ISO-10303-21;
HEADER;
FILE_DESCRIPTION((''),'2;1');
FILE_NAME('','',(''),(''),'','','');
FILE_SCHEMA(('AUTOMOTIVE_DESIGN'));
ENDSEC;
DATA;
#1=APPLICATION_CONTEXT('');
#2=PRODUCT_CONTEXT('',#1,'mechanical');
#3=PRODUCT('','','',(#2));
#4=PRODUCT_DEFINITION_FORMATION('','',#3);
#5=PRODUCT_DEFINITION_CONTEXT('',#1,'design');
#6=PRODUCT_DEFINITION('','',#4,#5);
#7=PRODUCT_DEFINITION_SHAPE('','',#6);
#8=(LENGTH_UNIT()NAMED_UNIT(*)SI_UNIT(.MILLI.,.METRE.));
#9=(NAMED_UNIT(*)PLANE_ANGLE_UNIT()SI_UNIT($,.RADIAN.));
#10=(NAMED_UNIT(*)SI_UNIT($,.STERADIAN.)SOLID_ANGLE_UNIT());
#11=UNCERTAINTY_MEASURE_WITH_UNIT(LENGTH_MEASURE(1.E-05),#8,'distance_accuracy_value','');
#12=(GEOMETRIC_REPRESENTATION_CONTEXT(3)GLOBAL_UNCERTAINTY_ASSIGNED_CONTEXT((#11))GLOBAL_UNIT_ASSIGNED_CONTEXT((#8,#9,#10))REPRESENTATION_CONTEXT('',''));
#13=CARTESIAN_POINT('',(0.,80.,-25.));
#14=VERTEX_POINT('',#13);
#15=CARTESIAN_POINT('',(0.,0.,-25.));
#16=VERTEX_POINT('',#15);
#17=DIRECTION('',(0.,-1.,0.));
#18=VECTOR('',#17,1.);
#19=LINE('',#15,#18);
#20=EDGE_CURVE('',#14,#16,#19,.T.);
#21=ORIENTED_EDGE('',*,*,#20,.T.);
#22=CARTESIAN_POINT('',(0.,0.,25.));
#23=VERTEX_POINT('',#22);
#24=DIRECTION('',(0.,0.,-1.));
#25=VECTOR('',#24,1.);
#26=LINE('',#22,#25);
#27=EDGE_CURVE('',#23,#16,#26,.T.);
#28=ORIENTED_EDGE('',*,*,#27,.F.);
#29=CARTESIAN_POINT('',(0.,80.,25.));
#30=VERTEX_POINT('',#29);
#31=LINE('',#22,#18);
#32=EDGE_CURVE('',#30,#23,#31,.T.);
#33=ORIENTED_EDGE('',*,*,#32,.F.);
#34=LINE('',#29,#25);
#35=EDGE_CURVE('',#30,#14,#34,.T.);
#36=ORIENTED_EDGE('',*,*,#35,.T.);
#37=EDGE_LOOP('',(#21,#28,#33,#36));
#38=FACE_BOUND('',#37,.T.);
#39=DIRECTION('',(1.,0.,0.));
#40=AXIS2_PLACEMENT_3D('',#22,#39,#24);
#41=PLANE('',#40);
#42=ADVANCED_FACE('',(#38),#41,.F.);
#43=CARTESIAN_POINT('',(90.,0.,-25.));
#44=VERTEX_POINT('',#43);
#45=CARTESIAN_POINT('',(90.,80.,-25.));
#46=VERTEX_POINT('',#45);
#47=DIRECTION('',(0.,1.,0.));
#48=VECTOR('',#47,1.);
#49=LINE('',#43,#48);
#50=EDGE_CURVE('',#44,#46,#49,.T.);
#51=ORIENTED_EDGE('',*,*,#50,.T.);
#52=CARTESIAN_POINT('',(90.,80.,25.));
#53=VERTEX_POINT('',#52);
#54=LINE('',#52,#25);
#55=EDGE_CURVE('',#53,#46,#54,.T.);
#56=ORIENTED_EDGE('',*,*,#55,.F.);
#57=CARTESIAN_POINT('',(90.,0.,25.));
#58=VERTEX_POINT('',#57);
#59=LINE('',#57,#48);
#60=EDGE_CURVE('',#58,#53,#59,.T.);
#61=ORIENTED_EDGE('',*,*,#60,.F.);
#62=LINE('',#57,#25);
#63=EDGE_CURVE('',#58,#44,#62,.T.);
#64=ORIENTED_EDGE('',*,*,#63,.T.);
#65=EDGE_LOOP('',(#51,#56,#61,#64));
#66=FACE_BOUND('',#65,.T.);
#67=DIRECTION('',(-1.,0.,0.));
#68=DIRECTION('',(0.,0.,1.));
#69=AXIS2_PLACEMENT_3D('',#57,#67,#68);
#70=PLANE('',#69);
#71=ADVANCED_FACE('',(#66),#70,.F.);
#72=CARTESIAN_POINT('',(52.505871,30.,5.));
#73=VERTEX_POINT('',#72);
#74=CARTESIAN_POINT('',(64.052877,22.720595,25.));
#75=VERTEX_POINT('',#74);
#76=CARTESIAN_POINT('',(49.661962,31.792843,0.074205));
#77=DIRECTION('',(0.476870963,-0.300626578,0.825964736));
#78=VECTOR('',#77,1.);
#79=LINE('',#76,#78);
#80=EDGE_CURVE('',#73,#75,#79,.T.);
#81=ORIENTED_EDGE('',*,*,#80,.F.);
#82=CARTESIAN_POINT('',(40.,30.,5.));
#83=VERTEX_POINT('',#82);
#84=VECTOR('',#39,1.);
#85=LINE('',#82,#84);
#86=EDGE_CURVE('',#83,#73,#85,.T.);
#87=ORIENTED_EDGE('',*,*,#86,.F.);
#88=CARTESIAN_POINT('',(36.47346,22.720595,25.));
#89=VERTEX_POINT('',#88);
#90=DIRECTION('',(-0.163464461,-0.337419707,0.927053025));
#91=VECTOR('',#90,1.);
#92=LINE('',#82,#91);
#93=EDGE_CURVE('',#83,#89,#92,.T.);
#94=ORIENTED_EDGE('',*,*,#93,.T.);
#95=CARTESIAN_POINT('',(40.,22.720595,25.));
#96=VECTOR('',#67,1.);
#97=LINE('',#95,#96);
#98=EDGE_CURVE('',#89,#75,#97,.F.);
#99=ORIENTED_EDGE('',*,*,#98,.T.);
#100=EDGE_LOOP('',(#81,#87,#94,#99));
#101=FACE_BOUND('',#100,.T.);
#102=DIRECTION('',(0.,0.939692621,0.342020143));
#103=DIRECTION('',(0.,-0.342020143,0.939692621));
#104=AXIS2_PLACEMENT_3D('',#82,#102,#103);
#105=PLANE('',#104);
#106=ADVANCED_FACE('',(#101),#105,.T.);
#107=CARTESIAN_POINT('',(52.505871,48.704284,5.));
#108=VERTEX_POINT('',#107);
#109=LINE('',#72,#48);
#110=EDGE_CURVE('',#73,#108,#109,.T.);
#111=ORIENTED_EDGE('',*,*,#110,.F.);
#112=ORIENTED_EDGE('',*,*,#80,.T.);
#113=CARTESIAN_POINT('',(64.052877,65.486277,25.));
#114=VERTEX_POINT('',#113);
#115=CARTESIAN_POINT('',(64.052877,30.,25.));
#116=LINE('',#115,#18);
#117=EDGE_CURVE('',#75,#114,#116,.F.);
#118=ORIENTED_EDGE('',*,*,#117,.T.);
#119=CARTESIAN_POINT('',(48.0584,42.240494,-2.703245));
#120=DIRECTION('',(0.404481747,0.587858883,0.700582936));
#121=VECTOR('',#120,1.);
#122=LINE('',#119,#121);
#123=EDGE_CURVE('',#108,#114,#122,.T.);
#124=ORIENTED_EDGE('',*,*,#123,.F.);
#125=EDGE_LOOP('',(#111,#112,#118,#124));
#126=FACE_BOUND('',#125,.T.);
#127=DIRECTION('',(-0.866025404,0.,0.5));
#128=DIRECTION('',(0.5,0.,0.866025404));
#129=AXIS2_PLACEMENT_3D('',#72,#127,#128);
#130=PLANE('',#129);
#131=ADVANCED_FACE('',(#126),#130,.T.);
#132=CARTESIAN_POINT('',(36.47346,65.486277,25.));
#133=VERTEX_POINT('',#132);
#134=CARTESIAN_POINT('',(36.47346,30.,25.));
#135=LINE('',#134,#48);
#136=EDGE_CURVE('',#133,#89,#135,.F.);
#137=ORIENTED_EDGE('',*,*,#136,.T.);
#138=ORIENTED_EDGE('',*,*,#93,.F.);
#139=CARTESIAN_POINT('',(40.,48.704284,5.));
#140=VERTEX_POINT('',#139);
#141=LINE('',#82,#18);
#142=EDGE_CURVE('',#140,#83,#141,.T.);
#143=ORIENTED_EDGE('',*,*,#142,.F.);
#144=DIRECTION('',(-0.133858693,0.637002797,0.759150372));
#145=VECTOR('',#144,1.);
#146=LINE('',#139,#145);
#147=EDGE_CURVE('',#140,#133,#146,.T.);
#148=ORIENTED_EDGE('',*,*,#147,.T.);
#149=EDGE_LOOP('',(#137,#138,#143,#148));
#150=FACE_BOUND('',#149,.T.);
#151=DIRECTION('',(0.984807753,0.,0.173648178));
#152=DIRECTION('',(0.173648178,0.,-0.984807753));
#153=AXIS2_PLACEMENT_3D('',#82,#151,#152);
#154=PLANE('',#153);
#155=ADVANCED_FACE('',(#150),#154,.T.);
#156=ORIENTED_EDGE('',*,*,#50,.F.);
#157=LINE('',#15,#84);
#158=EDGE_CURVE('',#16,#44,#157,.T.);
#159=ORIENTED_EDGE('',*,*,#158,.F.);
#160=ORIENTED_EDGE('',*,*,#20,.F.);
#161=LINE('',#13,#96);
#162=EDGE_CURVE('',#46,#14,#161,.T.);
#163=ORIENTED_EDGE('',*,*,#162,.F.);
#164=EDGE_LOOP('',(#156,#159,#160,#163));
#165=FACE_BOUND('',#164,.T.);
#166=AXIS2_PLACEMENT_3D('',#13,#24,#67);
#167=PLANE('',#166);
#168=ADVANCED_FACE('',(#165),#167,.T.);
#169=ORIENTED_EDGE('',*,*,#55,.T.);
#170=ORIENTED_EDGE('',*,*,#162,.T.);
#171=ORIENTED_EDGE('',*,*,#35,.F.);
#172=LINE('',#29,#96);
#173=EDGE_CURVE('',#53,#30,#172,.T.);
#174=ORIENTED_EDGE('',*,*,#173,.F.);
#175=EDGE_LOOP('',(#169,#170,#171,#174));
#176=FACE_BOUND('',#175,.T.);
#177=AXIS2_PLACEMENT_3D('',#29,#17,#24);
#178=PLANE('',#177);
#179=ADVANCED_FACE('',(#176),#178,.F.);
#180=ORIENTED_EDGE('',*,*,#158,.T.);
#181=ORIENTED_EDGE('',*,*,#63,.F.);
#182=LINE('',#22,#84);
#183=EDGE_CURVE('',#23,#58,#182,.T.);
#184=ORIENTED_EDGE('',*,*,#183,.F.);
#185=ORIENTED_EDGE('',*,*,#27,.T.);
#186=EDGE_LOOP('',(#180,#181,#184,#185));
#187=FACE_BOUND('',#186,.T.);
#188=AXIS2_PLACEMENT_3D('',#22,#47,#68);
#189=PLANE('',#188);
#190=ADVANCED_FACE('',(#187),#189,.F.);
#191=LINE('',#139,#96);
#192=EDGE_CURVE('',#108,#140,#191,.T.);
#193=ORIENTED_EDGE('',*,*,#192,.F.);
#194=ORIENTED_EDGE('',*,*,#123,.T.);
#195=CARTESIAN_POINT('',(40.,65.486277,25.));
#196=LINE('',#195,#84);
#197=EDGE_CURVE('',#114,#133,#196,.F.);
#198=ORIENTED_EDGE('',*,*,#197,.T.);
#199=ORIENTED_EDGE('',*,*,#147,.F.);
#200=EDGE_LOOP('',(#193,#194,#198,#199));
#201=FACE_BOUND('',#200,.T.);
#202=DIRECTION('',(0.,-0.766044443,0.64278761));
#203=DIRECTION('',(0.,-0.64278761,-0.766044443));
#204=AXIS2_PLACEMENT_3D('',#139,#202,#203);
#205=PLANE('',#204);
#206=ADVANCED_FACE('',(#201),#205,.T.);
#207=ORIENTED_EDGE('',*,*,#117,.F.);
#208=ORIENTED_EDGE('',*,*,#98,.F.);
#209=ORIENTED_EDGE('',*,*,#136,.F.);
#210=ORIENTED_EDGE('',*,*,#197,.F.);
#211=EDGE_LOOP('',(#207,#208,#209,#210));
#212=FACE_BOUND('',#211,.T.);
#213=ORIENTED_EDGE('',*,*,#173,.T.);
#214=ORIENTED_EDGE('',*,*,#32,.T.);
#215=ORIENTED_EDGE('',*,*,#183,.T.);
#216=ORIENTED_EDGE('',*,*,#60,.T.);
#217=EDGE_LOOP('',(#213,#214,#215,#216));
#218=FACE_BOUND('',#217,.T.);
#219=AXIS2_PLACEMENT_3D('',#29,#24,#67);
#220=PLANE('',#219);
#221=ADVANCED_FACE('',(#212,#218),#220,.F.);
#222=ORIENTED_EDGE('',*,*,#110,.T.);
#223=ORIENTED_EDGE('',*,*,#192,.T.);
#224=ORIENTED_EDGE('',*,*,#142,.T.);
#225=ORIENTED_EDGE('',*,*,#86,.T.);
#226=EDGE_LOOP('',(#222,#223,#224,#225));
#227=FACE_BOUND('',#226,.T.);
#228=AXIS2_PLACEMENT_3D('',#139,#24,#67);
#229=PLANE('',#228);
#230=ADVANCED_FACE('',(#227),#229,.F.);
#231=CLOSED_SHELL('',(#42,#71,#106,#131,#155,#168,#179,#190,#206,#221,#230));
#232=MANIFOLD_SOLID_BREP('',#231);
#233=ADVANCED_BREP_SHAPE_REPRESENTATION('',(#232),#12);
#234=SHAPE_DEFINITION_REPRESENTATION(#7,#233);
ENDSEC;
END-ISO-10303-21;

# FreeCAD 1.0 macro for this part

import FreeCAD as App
import Part
import Sketcher

V = App.Vector
Q = App.Units.Quantity


def faces_at(feature, points):
    """Names of the faces that lie closest to the given points."""
    faces = feature.Shape.Faces
    near = lambda p: min(range(len(faces)), key=lambda i: faces[i].distToShape(Part.Vertex(*p))[0])
    return sorted({f"Face{near(p) + 1}" for p in points})


def add_polygon(sketch, points):
    """Adds a closed chain of lines whose ends are joined by coincident constraints."""
    first, n = sketch.GeometryCount, len(points)
    for a, b in zip(points, points[1:] + points[:1]):
        sketch.addGeometry(Part.LineSegment(App.Vector(*a, 0), App.Vector(*b, 0)), False)
    for i in range(n):
        sketch.addConstraint(Sketcher.Constraint("Coincident", first + i, 2, first + (i + 1) % n, 1))

doc = App.newDocument("Part")
params = doc.addObject("Spreadsheet::Sheet", "Params")
for row, (alias, value) in enumerate([
    ("sketch1_width", "90 mm"),
    ("sketch1_height", "80 mm"),
    ("pad1_length", "50 mm"),
    ("pocket1_length", "20 mm"),
    ("draft_angle", "10 deg"),
    ("draft2_angle", "20 deg"),
    ("draft3_angle", "30 deg"),
    ("draft4_angle", "40 deg"),
], start=1):
    params.set(f"A{row}", alias)
    params.set(f"B{row}", "=" + value)
    params.setAlias(f"B{row}", alias)

body = doc.addObject("PartDesign::Body", "Body")

sketch1 = body.newObject("Sketcher::SketchObject", "Sketch")
sketch1.AttachmentSupport = (doc.getObject("XY_Plane"), [""])
sketch1.MapMode = "FlatFace"
add_polygon(sketch1, [(0, 80), (0, 0), (90, 0), (90, 80)])
sketch1.addConstraint([
    Sketcher.Constraint("Vertical", 0),
    Sketcher.Constraint("Horizontal", 1),
    Sketcher.Constraint("Vertical", 2),
    Sketcher.Constraint("Horizontal", 3),
    Sketcher.Constraint("Coincident", 0, 2, -1, 1),
    Sketcher.Constraint("DistanceX", 1, 1, 1, 2, Q("90 mm")),
    Sketcher.Constraint("DistanceY", 0, 2, 0, 1, Q("80 mm")),
])
sketch1.setExpression("Constraints[9]", "Params.sketch1_width")
sketch1.setExpression("Constraints[10]", "Params.sketch1_height")
pad1 = body.newObject("PartDesign::Pad", "Pad")
pad1.Profile = sketch1
pad1.setExpression("Length", "Params.pad1_length")
pad1.Midplane = True

sketch2 = body.newObject("Sketcher::SketchObject", "Sketch001")
sketch2.AttachmentSupport = (doc.getObject("XY_Plane"), [""])
sketch2.MapMode = "FlatFace"
sketch2.AttachmentOffset = App.Placement(V(0, 0, 25), App.Rotation())
add_polygon(sketch2, [(40, 48.704284), (40, 30), (52.505871, 30), (52.505871, 48.704284)])
sketch2.addConstraint([
    Sketcher.Constraint("Vertical", 0),
    Sketcher.Constraint("Horizontal", 1),
    Sketcher.Constraint("Vertical", 2),
    Sketcher.Constraint("Horizontal", 3),
    Sketcher.Constraint("DistanceX", -1, 1, 0, 2, Q("40 mm")),
    Sketcher.Constraint("DistanceY", -1, 1, 0, 2, Q("30 mm")),
    Sketcher.Constraint("DistanceX", 1, 1, 1, 2, Q("12.505871 mm")),
    Sketcher.Constraint("DistanceY", 0, 2, 0, 1, Q("18.704284 mm")),
])
pocket1 = body.newObject("PartDesign::Pocket", "Pocket")
pocket1.Profile = sketch2
pocket1.setExpression("Length", "Params.pocket1_length")
doc.recompute()

datumplane = body.newObject("PartDesign::Plane", "DatumPlane")
datumplane.AttachmentSupport = (doc.getObject("XY_Plane"), [""])
datumplane.MapMode = "FlatFace"
datumplane.AttachmentOffset = App.Placement(V(0, 0, 5), App.Rotation())
draft = body.newObject("PartDesign::Draft", "Draft")
draft.Base = (pocket1, faces_at(pocket1, [(40, 39.352, 15)]))
draft.NeutralPlane = (datumplane, [""])
draft.setExpression("Angle", "Params.draft_angle")
draft.Reversed = False
doc.recompute()

datumplane2 = body.newObject("PartDesign::Plane", "DatumPlane001")
datumplane2.AttachmentSupport = (doc.getObject("XY_Plane"), [""])
datumplane2.MapMode = "FlatFace"
datumplane2.AttachmentOffset = App.Placement(V(0, 0, 5), App.Rotation())
draft2 = body.newObject("PartDesign::Draft", "Draft001")
draft2.Base = (draft, faces_at(draft, [(44.49, 30, 15)]))
draft2.NeutralPlane = (datumplane2, [""])
draft2.setExpression("Angle", "Params.draft2_angle")
draft2.Reversed = False
doc.recompute()

datumplane3 = body.newObject("PartDesign::Plane", "DatumPlane002")
datumplane3.AttachmentSupport = (doc.getObject("XY_Plane"), [""])
datumplane3.MapMode = "FlatFace"
datumplane3.AttachmentOffset = App.Placement(V(0, 0, 5), App.Rotation())
draft3 = body.newObject("PartDesign::Draft", "Draft002")
draft3.Base = (draft2, faces_at(draft2, [(52.506, 35.712, 15)]))
draft3.NeutralPlane = (datumplane3, [""])
draft3.setExpression("Angle", "Params.draft3_angle")
draft3.Reversed = False
doc.recompute()

datumplane4 = body.newObject("PartDesign::Plane", "DatumPlane003")
datumplane4.AttachmentSupport = (doc.getObject("XY_Plane"), [""])
datumplane4.MapMode = "FlatFace"
datumplane4.AttachmentOffset = App.Placement(V(0, 0, 5), App.Rotation())
draft4 = body.newObject("PartDesign::Draft", "Draft003")
draft4.Base = (draft3, faces_at(draft3, [(50.263, 48.704, 15)]))
draft4.NeutralPlane = (datumplane4, [""])
draft4.setExpression("Angle", "Params.draft4_angle")
draft4.Reversed = False

doc.recompute()
